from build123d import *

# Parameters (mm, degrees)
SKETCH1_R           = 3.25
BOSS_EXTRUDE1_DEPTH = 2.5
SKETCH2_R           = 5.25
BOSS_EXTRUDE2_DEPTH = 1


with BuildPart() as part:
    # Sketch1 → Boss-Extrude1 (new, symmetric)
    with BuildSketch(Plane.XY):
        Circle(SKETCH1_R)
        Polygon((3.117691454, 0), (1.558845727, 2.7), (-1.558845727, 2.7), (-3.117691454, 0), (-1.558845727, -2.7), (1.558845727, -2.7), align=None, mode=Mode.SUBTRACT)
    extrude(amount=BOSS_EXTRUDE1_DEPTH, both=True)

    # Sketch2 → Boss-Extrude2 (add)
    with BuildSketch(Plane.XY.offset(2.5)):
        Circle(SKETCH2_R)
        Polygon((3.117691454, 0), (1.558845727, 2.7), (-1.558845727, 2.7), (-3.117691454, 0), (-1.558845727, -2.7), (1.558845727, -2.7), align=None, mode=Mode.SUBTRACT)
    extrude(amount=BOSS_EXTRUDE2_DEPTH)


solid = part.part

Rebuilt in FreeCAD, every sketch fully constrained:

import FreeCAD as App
import Part
import Sketcher
from FreeCAD import Vector
Q = App.Units.Quantity

doc = App.newDocument("Part")
params = doc.addObject("Spreadsheet::Sheet", "Params")
for row, (alias, value) in enumerate([
    ("sketch1_diameter", "6.5 mm"),
    ("pad1_length", "5 mm"),
    ("sketch2_diameter", "10.5 mm"),
    ("pad2_length", "1 mm"),
], start=1):
    params.set(f"A{row}", alias)
    params.set(f"B{row}", "=" + value)
    params.setAlias(f"B{row}", alias)

body = doc.addObject("PartDesign::Body", "Body")

# Sketch on XY plane
sketch1 = doc.addObject("Sketcher::SketchObject", "Sketch")
body.addObject(sketch1)
sketch1.AttachmentSupport = (doc.XY_Plane, [""])
sketch1.MapMode = "FlatFace"
sketch1.addGeometry(Part.Circle(Vector(0, 0, 0), Vector(0, 0, 1), 3.2), False)
sketch1.addGeometry(Part.LineSegment(Vector(1.6, 2.7, 0), Vector(3.1, 0, 0)), False)
sketch1.addGeometry(Part.LineSegment(Vector(3.1, 0, 0), Vector(1.6, -2.7, 0)), False)
sketch1.addGeometry(Part.LineSegment(Vector(1.6, -2.7, 0), Vector(-1.6, -2.7, 0)), False)
sketch1.addGeometry(Part.LineSegment(Vector(-1.6, -2.7, 0), Vector(-3.1, 0, 0)), False)
sketch1.addGeometry(Part.LineSegment(Vector(-3.1, 0, 0), Vector(-1.6, 2.7, 0)), False)
sketch1.addGeometry(Part.LineSegment(Vector(-1.6, 2.7, 0), Vector(1.6, 2.7, 0)), False)
sketch1.addConstraint(Sketcher.Constraint("Coincident", 1, 2, 2, 1))
sketch1.addConstraint(Sketcher.Constraint("Coincident", 2, 2, 3, 1))
sketch1.addConstraint(Sketcher.Constraint("Coincident", 3, 2, 4, 1))
sketch1.addConstraint(Sketcher.Constraint("Coincident", 4, 2, 5, 1))
sketch1.addConstraint(Sketcher.Constraint("Coincident", 5, 2, 6, 1))
sketch1.addConstraint(Sketcher.Constraint("Coincident", 6, 2, 1, 1))
sketch1.addConstraint(Sketcher.Constraint("Horizontal", 3))
sketch1.addConstraint(Sketcher.Constraint("Horizontal", 6))
sketch1.addConstraint(Sketcher.Constraint("Coincident", 0, 3, -1, 1))
sketch1.addConstraint(Sketcher.Constraint("Symmetric", 1, 2, 4, 2, -1, 1))
sketch1.addConstraint(Sketcher.Constraint("Symmetric", 2, 2, 5, 2, -1, 1))
sketch1.addConstraint(Sketcher.Constraint("PointOnObject", 1, 2, -1))
sketch1.addConstraint(Sketcher.Constraint("Parallel", 1, 4))
sketch1.addConstraint(Sketcher.Constraint("Vertical", 3, 2, 5, 2))
sketch1.addConstraint(Sketcher.Constraint("Diameter", 0, Q("6.5 mm")))
sketch1.addConstraint(Sketcher.Constraint("Angle", 1, Q("-60 deg")))
sketch1.addConstraint(Sketcher.Constraint("DistanceY", 2, 2, -1, 1, Q("2.7 mm")))
sketch1.addConstraint(Sketcher.Constraint("DistanceX", 3, 2, 3, 1, Q("3.117691 mm")))
sketch1.setExpression("Constraints[14]", "Params.sketch1_diameter")
pad1 = doc.addObject("PartDesign::Pad", "Pad")
body.addObject(pad1)
pad1.Profile = sketch1
pad1.setExpression("Length", "Params.pad1_length")
pad1.Midplane = True

# Sketch on XY plane
sketch2 = doc.addObject("Sketcher::SketchObject", "Sketch001")
body.addObject(sketch2)
sketch2.AttachmentSupport = (doc.XY_Plane, [""])
sketch2.MapMode = "FlatFace"
sketch2.AttachmentOffset = App.Placement(Vector(0, 0, 2.5), App.Rotation())
sketch2.addGeometry(Part.Circle(Vector(0, 0, 0), Vector(0, 0, 1), 5.2), False)
sketch2.addGeometry(Part.LineSegment(Vector(1.6, 2.7, 0), Vector(3.1, 0, 0)), False)
sketch2.addGeometry(Part.LineSegment(Vector(3.1, 0, 0), Vector(1.6, -2.7, 0)), False)
sketch2.addGeometry(Part.LineSegment(Vector(1.6, -2.7, 0), Vector(-1.6, -2.7, 0)), False)
sketch2.addGeometry(Part.LineSegment(Vector(-1.6, -2.7, 0), Vector(-3.1, 0, 0)), False)
sketch2.addGeometry(Part.LineSegment(Vector(-3.1, 0, 0), Vector(-1.6, 2.7, 0)), False)
sketch2.addGeometry(Part.LineSegment(Vector(-1.6, 2.7, 0), Vector(1.6, 2.7, 0)), False)
sketch2.addConstraint(Sketcher.Constraint("Coincident", 1, 2, 2, 1))
sketch2.addConstraint(Sketcher.Constraint("Coincident", 2, 2, 3, 1))
sketch2.addConstraint(Sketcher.Constraint("Coincident", 3, 2, 4, 1))
sketch2.addConstraint(Sketcher.Constraint("Coincident", 4, 2, 5, 1))
sketch2.addConstraint(Sketcher.Constraint("Coincident", 5, 2, 6, 1))
sketch2.addConstraint(Sketcher.Constraint("Coincident", 6, 2, 1, 1))
sketch2.addConstraint(Sketcher.Constraint("Horizontal", 3))
sketch2.addConstraint(Sketcher.Constraint("Horizontal", 6))
sketch2.addConstraint(Sketcher.Constraint("Coincident", 0, 3, -1, 1))
sketch2.addConstraint(Sketcher.Constraint("Symmetric", 1, 2, 4, 2, -1, 1))
sketch2.addConstraint(Sketcher.Constraint("Symmetric", 2, 2, 5, 2, -1, 1))
sketch2.addConstraint(Sketcher.Constraint("PointOnObject", 1, 2, -1))
sketch2.addConstraint(Sketcher.Constraint("Parallel", 1, 4))
sketch2.addConstraint(Sketcher.Constraint("Vertical", 3, 2, 5, 2))
sketch2.addConstraint(Sketcher.Constraint("Diameter", 0, Q("10.5 mm")))
sketch2.addConstraint(Sketcher.Constraint("Angle", 1, Q("-60 deg")))
sketch2.addConstraint(Sketcher.Constraint("DistanceY", 2, 2, -1, 1, Q("2.7 mm")))
sketch2.addConstraint(Sketcher.Constraint("DistanceX", 3, 2, 3, 1, Q("3.117691 mm")))
sketch2.setExpression("Constraints[14]", "Params.sketch2_diameter")
pad2 = doc.addObject("PartDesign::Pad", "Pad001")
body.addObject(pad2)
pad2.Profile = sketch2
pad2.setExpression("Length", "Params.pad2_length")

doc.recompute()
